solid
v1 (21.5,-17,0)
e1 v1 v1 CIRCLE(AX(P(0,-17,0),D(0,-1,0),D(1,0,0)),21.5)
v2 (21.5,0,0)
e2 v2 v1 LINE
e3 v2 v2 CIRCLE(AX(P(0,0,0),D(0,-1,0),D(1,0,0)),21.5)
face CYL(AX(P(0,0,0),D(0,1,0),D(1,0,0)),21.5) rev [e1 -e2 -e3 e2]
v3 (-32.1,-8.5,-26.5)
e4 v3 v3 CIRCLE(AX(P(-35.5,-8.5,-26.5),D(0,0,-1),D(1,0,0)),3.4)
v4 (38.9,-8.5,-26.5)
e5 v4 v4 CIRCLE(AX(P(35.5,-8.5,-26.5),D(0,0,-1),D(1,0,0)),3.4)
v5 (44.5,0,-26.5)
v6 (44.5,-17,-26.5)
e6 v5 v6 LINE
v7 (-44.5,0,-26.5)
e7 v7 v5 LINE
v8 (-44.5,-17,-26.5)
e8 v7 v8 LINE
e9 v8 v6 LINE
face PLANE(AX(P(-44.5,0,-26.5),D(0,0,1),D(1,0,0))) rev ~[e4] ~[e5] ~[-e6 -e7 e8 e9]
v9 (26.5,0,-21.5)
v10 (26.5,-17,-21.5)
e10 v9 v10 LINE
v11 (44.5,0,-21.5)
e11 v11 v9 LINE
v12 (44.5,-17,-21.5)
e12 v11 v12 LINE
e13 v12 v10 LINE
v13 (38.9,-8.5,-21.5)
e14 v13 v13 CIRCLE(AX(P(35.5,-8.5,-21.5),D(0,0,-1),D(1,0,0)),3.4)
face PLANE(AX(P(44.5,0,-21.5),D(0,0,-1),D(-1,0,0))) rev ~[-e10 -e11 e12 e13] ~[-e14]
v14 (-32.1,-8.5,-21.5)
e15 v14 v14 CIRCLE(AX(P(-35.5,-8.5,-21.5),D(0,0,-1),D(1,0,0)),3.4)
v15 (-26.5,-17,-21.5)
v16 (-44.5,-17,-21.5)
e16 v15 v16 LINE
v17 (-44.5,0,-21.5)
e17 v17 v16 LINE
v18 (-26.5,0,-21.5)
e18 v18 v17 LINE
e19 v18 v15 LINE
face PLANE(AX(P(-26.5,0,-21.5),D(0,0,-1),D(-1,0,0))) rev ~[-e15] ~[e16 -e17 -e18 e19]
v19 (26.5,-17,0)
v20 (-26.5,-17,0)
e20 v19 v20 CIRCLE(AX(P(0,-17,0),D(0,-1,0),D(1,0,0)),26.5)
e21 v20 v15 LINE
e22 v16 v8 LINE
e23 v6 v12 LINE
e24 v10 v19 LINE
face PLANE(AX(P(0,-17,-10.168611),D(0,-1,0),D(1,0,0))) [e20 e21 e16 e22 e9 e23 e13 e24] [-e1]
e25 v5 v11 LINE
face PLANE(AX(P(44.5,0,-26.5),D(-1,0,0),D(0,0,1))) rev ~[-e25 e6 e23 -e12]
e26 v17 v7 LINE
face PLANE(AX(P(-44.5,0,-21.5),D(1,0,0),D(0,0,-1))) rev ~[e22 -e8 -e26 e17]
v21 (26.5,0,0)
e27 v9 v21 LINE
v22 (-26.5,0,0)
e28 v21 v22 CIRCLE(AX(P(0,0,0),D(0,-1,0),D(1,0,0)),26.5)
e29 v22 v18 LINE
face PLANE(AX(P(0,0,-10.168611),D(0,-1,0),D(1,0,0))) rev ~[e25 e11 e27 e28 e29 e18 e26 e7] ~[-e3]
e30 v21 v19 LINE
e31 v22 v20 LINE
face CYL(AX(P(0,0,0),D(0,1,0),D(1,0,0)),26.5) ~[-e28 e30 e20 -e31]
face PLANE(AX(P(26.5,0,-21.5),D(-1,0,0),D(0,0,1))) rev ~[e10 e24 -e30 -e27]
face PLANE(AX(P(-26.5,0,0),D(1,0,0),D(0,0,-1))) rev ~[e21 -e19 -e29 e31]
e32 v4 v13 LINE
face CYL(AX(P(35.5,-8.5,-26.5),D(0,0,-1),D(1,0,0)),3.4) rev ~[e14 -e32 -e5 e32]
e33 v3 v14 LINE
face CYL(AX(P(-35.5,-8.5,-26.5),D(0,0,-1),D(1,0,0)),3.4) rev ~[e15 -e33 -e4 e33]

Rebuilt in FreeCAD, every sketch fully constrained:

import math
import FreeCAD as App
import Part
import Sketcher
from FreeCAD import Vector
Q = App.Units.Quantity

doc = App.newDocument("Part")
body = doc.addObject("PartDesign::Body", "Body")

# Sketch on XZ plane
sketch1 = body.newObject("Sketcher::SketchObject", "Sketch")
sketch1.AttachmentSupport = (doc.getObject("XZ_Plane"), [""])
sketch1.MapMode = "FlatFace"
sketch1.addGeometry([
    Part.LineSegment(Vector(-44, -22, 0), Vector(-44, -26, 0)),  # 0
    Part.LineSegment(Vector(-44, -26, 0), Vector(44, -26, 0)),  # 1
    Part.LineSegment(Vector(44, -26, 0), Vector(44, -22, 0)),  # 2
    Part.LineSegment(Vector(44, -22, 0), Vector(26, -22, 0)),  # 3
    Part.LineSegment(Vector(26, -22, 0), Vector(26, 0, 0)),  # 4
    Part.ArcOfCircle(Part.Circle(Vector(0, 0, 0), Vector(0, 0, 1), 26), math.radians(0), math.radians(180)),  # 5
    Part.LineSegment(Vector(-26, 0, 0), Vector(-26, -22, 0)),  # 6
    Part.LineSegment(Vector(-26, -22, 0), Vector(-44, -22, 0)),  # 7
    Part.Circle(Vector(0, 0, 0), Vector(0, 0, 1), 22),  # 8
], False)
sketch1.addConstraint([
    Sketcher.Constraint("Coincident", 0, 2, 1, 1),
    Sketcher.Constraint("Coincident", 1, 2, 2, 1),
    Sketcher.Constraint("Coincident", 2, 2, 3, 1),
    Sketcher.Constraint("Coincident", 3, 2, 4, 1),
    Sketcher.Constraint("Tangent", 4, 2, 5, 1),
    Sketcher.Constraint("Tangent", 5, 2, 6, 1),
    Sketcher.Constraint("Coincident", 6, 2, 7, 1),
    Sketcher.Constraint("Coincident", 7, 2, 0, 1),
    Sketcher.Constraint("Vertical", 0),
    Sketcher.Constraint("Horizontal", 1),
    Sketcher.Constraint("Vertical", 2),
    Sketcher.Constraint("Horizontal", 3),
    Sketcher.Constraint("Vertical", 4),
    Sketcher.Constraint("Vertical", 6),
    Sketcher.Constraint("Horizontal", 7),
    Sketcher.Constraint("Coincident", 5, 3, -1, 1),
    Sketcher.Constraint("Coincident", 8, 3, -1, 1),
    Sketcher.Constraint("Symmetric", 2, 2, 7, 2, -2),
    Sketcher.Constraint("Diameter", 8, Q("43 mm")),
    Sketcher.Constraint("Radius", 5, Q("26.5 mm")),
    Sketcher.Constraint("DistanceX", 1, 1, 1, 2, Q("89 mm")),
    Sketcher.Constraint("DistanceY", 0, 2, 0, 1, Q("5 mm")),
    Sketcher.Constraint("DistanceY", 4, 1, 4, 2, Q("21.5 mm")),
])
pad1 = body.newObject("PartDesign::Pad", "Pad")
pad1.Profile = sketch1
pad1.Length = 17

# Sketch on XY plane
sketch2 = body.newObject("Sketcher::SketchObject", "Sketch001")
sketch2.AttachmentSupport = (doc.getObject("XY_Plane"), [""])
sketch2.MapMode = "FlatFace"
sketch2.AttachmentOffset = App.Placement(Vector(0, 0, -26.5), App.Rotation())
sketch2.addGeometry([
    Part.Circle(Vector(-35.5, -8.5, 0), Vector(0, 0, 1), 3.4),
    Part.Circle(Vector(35.5, -8.5, 0), Vector(0, 0, 1), 3.4),
], False)
sketch2.addConstraint([
    Sketcher.Constraint("Equal", 0, 1),
    Sketcher.Constraint("Symmetric", 0, 3, 1, 3, -2),
    Sketcher.Constraint("Diameter", 0, Q("6.8 mm")),
    Sketcher.Constraint("DistanceX", 0, 3, 1, 3, Q("71 mm")),
    Sketcher.Constraint("DistanceY", 0, 3, -1, 1, Q("8.5 mm")),
])
pocket1 = body.newObject("PartDesign::Pocket", "Pocket")
pocket1.Profile = sketch2
pocket1.Type = "ThroughAll"
pocket1.Reversed = True

doc.recompute()
